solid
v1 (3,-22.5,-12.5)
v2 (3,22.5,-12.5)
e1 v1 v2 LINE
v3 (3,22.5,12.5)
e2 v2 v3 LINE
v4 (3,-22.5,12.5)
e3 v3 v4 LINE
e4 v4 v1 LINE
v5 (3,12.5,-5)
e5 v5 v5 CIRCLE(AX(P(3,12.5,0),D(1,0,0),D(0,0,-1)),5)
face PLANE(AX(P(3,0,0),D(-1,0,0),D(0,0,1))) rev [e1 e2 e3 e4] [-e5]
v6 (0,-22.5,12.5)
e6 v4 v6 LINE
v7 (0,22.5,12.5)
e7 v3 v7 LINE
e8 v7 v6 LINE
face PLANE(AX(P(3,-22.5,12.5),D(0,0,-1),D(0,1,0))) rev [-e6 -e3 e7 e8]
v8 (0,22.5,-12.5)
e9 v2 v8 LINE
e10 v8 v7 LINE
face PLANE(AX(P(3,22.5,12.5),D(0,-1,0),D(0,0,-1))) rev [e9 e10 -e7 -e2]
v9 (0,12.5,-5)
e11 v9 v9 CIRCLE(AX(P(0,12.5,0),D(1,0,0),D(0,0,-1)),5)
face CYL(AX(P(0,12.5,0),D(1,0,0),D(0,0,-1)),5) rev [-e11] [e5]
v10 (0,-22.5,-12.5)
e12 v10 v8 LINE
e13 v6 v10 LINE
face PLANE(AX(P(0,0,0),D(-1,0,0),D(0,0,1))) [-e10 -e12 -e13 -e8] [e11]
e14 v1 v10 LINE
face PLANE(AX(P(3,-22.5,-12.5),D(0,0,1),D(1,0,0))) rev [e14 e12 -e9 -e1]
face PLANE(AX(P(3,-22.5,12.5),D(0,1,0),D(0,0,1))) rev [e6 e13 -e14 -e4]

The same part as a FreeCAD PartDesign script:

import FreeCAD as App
import Part
import Sketcher
from FreeCAD import Vector
Q = App.Units.Quantity

doc = App.newDocument("Part")
body = doc.addObject("PartDesign::Body", "Body")

# Sketch on YZ plane
sketch1 = doc.addObject("Sketcher::SketchObject", "Sketch")
body.addObject(sketch1)
sketch1.AttachmentSupport = (doc.YZ_Plane, [""])
sketch1.MapMode = "FlatFace"
sketch1.addGeometry(Part.LineSegment(Vector(22.5, 12.5, 0), Vector(-22.5, 12.5, 0)), False)
sketch1.addGeometry(Part.LineSegment(Vector(-22.5, 12.5, 0), Vector(-22.5, -12.5, 0)), False)
sketch1.addGeometry(Part.LineSegment(Vector(-22.5, -12.5, 0), Vector(22.5, -12.5, 0)), False)
sketch1.addGeometry(Part.LineSegment(Vector(22.5, -12.5, 0), Vector(22.5, 12.5, 0)), False)
sketch1.addConstraint(Sketcher.Constraint("Coincident", 0, 2, 1, 1))
sketch1.addConstraint(Sketcher.Constraint("Coincident", 1, 2, 2, 1))
sketch1.addConstraint(Sketcher.Constraint("Coincident", 2, 2, 3, 1))
sketch1.addConstraint(Sketcher.Constraint("Coincident", 3, 2, 0, 1))
sketch1.addConstraint(Sketcher.Constraint("Horizontal", 0))
sketch1.addConstraint(Sketcher.Constraint("Vertical", 1))
sketch1.addConstraint(Sketcher.Constraint("Horizontal", 2))
sketch1.addConstraint(Sketcher.Constraint("Vertical", 3))
sketch1.addConstraint(Sketcher.Constraint("Symmetric", 0, 2, 2, 2, -1, 1))
sketch1.addConstraint(Sketcher.Constraint("DistanceX", 0, 2, 0, 1, Q("45 mm")))
sketch1.addConstraint(Sketcher.Constraint("DistanceY", 1, 2, 1, 1, Q("25 mm")))
pad1 = doc.addObject("PartDesign::Pad", "Pad")
body.addObject(pad1)
pad1.Profile = sketch1
pad1.Length = 3

# Sketch on YZ plane
sketch2 = doc.addObject("Sketcher::SketchObject", "Sketch001")
body.addObject(sketch2)
sketch2.AttachmentSupport = (doc.YZ_Plane, [""])
sketch2.MapMode = "FlatFace"
sketch2.AttachmentOffset = App.Placement(Vector(0, 0, 3), App.Rotation())
sketch2.addGeometry(Part.Circle(Vector(12.5, 0, 0), Vector(0, 0, 1), 5), False)
sketch2.addConstraint(Sketcher.Constraint("PointOnObject", 0, 3, -1))
sketch2.addConstraint(Sketcher.Constraint("Diameter", 0, Q("10 mm")))
sketch2.addConstraint(Sketcher.Constraint("DistanceX", -1, 1, 0, 3, Q("12.5 mm")))
pocket1 = doc.addObject("PartDesign::Pocket", "Pocket")
body.addObject(pocket1)
pocket1.Profile = sketch2
pocket1.Length = 3

doc.recompute()
